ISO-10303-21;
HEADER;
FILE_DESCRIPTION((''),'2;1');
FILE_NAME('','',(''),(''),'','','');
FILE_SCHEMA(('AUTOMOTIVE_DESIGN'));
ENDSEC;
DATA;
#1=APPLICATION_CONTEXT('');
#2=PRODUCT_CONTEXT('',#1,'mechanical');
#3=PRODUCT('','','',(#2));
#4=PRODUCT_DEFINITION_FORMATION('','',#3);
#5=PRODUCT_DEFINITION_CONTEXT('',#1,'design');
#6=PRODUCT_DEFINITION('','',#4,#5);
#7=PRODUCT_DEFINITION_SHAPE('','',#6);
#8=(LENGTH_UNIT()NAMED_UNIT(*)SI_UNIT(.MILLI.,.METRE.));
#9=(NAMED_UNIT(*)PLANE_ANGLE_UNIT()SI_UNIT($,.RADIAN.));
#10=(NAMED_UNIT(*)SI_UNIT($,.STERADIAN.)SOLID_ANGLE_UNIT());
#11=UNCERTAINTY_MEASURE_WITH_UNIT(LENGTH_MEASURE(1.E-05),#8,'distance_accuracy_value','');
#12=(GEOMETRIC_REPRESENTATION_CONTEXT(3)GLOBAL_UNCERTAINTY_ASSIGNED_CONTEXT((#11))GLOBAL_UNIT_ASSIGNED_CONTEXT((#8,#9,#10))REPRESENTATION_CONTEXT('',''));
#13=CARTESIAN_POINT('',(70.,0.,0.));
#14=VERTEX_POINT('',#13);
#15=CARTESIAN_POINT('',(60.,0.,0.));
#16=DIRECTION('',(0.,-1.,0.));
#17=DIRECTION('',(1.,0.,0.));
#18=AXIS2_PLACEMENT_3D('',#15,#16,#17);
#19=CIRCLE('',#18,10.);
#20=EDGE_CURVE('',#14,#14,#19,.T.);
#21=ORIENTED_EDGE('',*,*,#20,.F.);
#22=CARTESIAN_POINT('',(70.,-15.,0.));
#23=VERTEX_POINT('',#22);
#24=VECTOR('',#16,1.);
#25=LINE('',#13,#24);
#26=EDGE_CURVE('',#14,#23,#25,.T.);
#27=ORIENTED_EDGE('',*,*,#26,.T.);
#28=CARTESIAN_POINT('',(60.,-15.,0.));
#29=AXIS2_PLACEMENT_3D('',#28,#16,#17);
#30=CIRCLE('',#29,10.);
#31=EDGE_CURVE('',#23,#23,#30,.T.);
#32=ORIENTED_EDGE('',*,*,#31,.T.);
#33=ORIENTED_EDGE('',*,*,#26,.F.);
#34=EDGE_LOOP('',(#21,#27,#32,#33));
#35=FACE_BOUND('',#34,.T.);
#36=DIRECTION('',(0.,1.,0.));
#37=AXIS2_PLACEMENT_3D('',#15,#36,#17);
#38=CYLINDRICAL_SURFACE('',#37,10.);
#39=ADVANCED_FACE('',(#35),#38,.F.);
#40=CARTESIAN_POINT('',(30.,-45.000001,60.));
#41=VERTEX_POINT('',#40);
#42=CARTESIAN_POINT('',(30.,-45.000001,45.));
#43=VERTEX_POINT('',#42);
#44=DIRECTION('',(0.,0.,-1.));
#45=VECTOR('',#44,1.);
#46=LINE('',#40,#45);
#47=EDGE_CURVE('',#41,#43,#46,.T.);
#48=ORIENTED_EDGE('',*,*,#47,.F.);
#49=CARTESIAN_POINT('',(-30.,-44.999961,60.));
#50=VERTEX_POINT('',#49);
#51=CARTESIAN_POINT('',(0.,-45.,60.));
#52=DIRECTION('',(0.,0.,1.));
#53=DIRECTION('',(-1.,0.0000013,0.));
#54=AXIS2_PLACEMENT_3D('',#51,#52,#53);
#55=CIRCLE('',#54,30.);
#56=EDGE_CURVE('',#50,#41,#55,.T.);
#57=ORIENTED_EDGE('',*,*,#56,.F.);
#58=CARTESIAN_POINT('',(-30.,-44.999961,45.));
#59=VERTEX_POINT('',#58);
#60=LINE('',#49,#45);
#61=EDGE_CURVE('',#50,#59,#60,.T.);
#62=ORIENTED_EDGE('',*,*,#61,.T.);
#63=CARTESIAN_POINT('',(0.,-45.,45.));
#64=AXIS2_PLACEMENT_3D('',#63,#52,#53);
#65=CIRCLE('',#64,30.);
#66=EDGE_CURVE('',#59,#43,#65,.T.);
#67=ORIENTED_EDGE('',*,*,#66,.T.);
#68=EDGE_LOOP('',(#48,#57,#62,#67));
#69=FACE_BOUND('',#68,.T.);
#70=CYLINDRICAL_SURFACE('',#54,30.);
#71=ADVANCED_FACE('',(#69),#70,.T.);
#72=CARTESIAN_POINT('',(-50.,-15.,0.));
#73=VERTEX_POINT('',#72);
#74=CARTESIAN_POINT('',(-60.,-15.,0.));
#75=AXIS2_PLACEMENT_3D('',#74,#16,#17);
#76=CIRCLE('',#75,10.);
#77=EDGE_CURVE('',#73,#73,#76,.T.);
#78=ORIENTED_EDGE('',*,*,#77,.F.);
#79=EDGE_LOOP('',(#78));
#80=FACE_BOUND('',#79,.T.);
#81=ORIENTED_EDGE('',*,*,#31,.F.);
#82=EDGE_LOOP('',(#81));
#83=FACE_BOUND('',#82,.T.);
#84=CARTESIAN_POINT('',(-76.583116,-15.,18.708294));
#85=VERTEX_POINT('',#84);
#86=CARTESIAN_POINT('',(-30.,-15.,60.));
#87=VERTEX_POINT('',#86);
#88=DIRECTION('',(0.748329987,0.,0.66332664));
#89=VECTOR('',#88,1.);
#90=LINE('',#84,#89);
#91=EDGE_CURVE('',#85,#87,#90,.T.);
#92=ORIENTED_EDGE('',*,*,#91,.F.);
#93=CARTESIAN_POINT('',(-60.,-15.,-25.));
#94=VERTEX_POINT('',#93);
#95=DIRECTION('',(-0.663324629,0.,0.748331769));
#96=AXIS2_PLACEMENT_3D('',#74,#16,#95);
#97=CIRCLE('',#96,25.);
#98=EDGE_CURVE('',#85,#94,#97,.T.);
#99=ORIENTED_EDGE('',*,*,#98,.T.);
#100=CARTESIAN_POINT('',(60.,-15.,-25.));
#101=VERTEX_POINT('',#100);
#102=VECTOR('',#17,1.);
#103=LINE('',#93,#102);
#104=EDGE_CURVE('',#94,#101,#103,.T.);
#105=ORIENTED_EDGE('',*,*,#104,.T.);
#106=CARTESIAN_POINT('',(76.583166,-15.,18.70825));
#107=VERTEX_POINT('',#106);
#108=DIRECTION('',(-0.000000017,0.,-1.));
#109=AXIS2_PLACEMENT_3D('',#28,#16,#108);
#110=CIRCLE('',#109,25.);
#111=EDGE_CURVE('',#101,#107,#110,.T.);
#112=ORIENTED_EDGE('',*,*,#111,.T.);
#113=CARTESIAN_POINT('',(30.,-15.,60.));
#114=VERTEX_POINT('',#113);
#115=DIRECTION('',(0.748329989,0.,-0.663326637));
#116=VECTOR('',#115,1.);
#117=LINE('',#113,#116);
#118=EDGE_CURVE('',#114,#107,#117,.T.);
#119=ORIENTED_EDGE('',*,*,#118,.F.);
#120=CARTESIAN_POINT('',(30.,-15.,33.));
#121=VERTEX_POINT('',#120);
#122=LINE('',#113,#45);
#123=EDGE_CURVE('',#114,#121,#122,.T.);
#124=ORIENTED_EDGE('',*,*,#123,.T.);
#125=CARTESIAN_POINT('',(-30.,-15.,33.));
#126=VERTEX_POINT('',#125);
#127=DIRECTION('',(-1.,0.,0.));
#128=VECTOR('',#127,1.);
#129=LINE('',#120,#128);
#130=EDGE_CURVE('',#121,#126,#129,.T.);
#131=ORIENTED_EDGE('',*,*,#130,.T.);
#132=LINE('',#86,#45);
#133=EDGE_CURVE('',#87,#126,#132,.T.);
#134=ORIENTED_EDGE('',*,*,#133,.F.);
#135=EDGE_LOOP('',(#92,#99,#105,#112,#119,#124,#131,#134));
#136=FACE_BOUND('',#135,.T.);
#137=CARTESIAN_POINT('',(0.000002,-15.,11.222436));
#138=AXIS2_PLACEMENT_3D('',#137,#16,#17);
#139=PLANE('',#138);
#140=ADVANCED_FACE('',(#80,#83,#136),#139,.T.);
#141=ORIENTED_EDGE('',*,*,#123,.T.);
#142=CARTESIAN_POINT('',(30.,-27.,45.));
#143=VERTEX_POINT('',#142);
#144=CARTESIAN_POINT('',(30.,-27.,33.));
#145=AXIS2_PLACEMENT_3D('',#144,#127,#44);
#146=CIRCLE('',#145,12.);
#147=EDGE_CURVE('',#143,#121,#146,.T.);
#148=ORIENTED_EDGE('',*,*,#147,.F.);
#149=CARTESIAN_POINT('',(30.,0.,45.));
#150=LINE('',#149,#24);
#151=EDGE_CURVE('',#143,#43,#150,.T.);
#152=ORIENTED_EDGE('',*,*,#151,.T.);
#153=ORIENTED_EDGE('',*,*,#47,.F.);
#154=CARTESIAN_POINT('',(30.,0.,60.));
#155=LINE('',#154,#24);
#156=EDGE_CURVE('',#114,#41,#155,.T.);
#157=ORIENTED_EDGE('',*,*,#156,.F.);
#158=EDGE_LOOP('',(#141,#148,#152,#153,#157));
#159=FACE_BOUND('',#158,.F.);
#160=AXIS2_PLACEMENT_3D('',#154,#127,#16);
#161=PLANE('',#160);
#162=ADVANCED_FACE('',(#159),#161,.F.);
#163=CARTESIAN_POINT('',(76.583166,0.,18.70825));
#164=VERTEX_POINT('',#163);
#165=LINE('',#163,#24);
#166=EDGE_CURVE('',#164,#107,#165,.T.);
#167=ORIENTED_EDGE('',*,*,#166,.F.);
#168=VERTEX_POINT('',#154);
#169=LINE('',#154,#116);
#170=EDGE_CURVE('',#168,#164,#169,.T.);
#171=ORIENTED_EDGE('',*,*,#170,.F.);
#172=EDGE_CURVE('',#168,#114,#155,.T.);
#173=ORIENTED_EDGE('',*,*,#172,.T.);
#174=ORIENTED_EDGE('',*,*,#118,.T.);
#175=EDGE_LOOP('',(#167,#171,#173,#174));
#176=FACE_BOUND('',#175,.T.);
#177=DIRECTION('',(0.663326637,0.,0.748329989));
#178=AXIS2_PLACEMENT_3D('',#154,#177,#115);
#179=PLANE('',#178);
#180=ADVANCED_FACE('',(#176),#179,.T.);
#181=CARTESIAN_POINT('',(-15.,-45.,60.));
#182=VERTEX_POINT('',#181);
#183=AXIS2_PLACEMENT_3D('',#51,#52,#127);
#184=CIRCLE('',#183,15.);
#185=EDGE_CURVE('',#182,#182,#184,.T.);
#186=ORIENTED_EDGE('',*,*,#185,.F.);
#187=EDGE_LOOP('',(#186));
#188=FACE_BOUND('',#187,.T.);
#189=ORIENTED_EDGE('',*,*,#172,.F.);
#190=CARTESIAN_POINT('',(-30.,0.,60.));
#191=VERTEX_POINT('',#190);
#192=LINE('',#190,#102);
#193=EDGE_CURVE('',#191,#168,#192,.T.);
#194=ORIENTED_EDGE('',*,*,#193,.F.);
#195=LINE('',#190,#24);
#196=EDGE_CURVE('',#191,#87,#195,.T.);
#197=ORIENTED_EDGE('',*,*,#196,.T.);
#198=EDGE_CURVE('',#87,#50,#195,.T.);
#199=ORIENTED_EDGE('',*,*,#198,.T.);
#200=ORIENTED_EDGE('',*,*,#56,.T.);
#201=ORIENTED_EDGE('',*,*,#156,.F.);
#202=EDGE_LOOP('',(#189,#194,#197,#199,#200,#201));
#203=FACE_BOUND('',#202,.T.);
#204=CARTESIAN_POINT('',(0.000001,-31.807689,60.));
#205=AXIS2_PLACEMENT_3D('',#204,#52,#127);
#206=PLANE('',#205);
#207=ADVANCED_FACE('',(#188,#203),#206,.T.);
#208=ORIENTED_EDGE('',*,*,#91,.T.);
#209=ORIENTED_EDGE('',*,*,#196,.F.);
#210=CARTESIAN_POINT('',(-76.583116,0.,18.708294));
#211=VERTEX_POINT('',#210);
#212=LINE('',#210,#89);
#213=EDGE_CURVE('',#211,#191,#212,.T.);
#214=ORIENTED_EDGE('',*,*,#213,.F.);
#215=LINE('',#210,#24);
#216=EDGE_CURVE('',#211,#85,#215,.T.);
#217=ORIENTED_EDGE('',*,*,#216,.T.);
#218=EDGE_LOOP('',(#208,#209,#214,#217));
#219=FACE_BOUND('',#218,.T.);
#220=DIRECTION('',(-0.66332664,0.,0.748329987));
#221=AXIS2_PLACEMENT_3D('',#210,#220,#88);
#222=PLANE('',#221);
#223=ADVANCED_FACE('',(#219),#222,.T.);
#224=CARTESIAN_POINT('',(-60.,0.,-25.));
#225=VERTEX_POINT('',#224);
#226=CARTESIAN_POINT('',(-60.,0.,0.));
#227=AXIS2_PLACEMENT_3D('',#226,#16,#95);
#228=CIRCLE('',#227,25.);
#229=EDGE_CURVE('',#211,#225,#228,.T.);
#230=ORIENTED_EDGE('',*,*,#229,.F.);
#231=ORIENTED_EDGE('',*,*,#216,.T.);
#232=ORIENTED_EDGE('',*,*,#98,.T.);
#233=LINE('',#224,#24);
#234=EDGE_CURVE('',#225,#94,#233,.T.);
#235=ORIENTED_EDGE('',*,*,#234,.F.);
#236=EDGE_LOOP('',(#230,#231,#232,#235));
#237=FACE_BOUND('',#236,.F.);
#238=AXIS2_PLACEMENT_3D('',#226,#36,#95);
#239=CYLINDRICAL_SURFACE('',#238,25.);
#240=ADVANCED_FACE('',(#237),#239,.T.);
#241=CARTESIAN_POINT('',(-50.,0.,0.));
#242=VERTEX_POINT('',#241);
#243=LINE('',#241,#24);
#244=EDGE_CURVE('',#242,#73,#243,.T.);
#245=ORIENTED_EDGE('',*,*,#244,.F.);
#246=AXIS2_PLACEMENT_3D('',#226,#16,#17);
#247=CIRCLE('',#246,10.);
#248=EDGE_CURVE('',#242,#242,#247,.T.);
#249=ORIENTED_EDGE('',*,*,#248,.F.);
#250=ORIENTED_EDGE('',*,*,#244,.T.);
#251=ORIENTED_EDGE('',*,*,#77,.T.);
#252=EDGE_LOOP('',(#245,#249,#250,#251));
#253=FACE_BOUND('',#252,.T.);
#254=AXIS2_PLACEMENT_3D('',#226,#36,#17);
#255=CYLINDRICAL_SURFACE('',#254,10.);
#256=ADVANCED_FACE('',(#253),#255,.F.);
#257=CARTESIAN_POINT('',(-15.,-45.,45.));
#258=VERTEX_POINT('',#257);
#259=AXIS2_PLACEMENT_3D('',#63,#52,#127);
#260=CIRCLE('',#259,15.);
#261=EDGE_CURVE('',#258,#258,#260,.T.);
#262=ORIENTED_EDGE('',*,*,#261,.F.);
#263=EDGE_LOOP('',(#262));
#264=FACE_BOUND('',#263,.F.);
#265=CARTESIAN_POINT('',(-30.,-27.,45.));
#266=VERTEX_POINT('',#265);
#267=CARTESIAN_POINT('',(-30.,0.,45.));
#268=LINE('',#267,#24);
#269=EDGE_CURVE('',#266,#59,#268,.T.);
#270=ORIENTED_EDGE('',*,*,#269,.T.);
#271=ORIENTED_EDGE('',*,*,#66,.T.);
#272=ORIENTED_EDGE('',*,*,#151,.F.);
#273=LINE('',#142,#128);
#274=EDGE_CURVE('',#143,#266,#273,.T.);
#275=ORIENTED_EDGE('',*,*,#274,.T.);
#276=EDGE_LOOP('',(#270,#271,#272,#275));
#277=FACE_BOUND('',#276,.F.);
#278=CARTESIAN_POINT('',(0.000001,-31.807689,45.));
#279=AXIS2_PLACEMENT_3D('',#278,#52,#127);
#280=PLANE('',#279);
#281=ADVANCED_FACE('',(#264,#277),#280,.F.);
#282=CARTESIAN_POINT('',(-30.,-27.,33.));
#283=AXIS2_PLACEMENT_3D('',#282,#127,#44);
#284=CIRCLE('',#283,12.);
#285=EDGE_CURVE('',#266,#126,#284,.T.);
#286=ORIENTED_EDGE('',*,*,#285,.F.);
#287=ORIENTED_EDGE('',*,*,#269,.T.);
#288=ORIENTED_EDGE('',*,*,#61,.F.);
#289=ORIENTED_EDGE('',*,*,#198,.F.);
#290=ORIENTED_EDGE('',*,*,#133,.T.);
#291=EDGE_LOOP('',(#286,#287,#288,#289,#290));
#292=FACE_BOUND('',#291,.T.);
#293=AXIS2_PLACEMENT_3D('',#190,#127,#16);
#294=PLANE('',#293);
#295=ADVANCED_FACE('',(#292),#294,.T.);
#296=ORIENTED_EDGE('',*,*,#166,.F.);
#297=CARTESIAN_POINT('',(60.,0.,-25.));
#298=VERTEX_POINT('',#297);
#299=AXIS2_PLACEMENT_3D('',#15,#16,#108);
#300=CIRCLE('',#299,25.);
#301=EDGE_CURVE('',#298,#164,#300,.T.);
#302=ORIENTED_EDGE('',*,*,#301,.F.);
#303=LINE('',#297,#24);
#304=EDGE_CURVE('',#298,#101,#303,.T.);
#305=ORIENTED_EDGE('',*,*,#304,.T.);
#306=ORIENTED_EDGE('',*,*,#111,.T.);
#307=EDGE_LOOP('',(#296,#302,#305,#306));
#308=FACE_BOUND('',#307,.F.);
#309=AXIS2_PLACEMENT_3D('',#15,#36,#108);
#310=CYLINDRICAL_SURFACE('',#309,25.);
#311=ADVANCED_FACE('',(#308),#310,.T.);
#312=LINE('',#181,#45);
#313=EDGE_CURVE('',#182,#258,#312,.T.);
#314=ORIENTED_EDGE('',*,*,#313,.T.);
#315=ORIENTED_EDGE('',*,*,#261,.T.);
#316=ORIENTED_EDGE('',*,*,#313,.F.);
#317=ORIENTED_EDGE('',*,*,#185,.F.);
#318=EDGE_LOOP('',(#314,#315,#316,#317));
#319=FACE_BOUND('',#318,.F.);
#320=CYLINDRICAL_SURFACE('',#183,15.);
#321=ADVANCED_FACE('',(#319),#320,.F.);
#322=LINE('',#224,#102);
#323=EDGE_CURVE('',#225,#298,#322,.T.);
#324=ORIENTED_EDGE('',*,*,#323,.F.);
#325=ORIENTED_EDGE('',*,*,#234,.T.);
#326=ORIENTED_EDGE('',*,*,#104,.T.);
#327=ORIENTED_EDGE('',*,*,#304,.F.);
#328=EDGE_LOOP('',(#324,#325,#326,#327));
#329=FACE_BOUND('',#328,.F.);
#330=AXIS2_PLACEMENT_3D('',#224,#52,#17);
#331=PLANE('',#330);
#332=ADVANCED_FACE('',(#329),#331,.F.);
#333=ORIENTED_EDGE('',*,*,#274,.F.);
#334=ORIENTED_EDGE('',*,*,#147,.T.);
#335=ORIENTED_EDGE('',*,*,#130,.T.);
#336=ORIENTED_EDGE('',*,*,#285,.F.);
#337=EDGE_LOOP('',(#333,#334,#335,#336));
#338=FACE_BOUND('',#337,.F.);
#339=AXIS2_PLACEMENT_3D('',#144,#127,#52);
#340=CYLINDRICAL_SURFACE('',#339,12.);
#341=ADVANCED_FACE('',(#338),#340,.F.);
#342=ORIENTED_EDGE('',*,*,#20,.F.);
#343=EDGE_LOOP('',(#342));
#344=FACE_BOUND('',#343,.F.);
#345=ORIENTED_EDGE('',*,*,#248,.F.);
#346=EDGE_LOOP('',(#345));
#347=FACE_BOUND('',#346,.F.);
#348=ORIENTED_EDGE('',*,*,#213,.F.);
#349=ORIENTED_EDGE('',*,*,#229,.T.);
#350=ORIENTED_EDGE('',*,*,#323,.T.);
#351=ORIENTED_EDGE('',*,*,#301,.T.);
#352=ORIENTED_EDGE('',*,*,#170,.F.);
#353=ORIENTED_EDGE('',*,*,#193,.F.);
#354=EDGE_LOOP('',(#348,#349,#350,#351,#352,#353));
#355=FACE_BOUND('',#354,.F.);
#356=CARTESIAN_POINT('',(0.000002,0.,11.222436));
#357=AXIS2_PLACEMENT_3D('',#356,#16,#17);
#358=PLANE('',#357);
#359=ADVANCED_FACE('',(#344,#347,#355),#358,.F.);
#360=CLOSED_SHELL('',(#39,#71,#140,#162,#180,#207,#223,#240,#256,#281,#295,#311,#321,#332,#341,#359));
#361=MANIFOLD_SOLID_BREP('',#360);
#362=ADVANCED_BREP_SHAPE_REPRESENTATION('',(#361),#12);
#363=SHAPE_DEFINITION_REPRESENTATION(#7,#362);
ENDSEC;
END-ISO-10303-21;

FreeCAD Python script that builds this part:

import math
import FreeCAD as App
import Part
import Sketcher
Q = App.Units.Quantity


def edges_at(feature, points):
    """Names of the edges that pass closest to the given points."""
    edges = feature.Shape.Edges
    near = lambda p: min(range(len(edges)), key=lambda i: edges[i].distToShape(Part.Vertex(*p))[0])
    return sorted({f"Edge{near(p) + 1}" for p in points})

doc = App.newDocument("Part")
params = doc.addObject("Spreadsheet::Sheet", "Params")
for row, (alias, value) in enumerate([
    ("sketch1_diameter", "20 mm"),
    ("sketch1_radius", "25 mm"),
    ("sketch1_width", "120 mm"),
    ("sketch1_width2", "60 mm"),
    ("pad1_length", "15 mm"),
    ("sketch2_diameter", "30 mm"),
    ("sketch2_radius", "30 mm"),
    ("sketch2_height", "45.000001 mm"),
    ("pad2_length", "15 mm"),
    ("fillet_radius", "12 mm"),
], start=1):
    params.set(f"A{row}", alias)
    params.set(f"B{row}", "=" + value)
    params.setAlias(f"B{row}", alias)

body = doc.addObject("PartDesign::Body", "Body")

# Sketch on XZ plane
sketch1 = doc.addObject("Sketcher::SketchObject", "Sketch")
body.addObject(sketch1)
sketch1.AttachmentSupport = (doc.XZ_Plane, [""])
sketch1.MapMode = "FlatFace"
sketch1.addGeometry([
    Part.ArcOfCircle(Part.Circle(App.Vector(-60, 0, 0), App.Vector(0, 0, 1), 25), math.radians(132), math.radians(270)),  # 0
    Part.LineSegment(App.Vector(-60, -25, 0), App.Vector(60, -25, 0)),  # 1
    Part.ArcOfCircle(Part.Circle(App.Vector(60, 0, 0), App.Vector(0, 0, 1), 25), math.radians(-90), math.radians(48)),  # 2
    Part.LineSegment(App.Vector(77, 19, 0), App.Vector(30, 60, 0)),  # 3
    Part.LineSegment(App.Vector(30, 60, 0), App.Vector(-30, 60, 0)),  # 4
    Part.LineSegment(App.Vector(-30, 60, 0), App.Vector(-77, 19, 0)),  # 5
    Part.Circle(App.Vector(-60, 0, 0), App.Vector(0, 0, 1), 10),  # 6
    Part.Circle(App.Vector(60, 0, 0), App.Vector(0, 0, 1), 10),  # 7
], False)
sketch1.addConstraint([
    Sketcher.Constraint("Tangent", 0, 2, 1, 1),
    Sketcher.Constraint("Tangent", 1, 2, 2, 1),
    Sketcher.Constraint("Tangent", 2, 2, 3, 1),
    Sketcher.Constraint("Coincident", 3, 2, 4, 1),
    Sketcher.Constraint("Coincident", 4, 2, 5, 1),
    Sketcher.Constraint("Coincident", 5, 2, 0, 1),
    Sketcher.Constraint("Horizontal", 1),
    Sketcher.Constraint("Horizontal", 4),
    Sketcher.Constraint("Coincident", 6, 3, 0, 3),
    Sketcher.Constraint("Coincident", 7, 3, 2, 3),
    Sketcher.Constraint("Equal", 0, 2),
    Sketcher.Constraint("Equal", 6, 7),
    Sketcher.Constraint("Symmetric", 0, 3, 2, 3, -1, 1),
    Sketcher.Constraint("Diameter", 6, Q("20 mm")),
    Sketcher.Constraint("Radius", 0, Q("25 mm")),
    Sketcher.Constraint("DistanceX", 1, 1, 1, 2, Q("120 mm")),
    Sketcher.Constraint("DistanceX", 4, 2, 4, 1, Q("60 mm")),
    Sketcher.Constraint("DistanceX", -1, 1, 3, 2, Q("30 mm")),
    Sketcher.Constraint("DistanceY", -1, 1, 3, 2, Q("60 mm")),
    Sketcher.Constraint("Distance", 5, Q("62.249431 mm")),
])
sketch1.setExpression("Constraints[13]", "Params.sketch1_diameter")
sketch1.setExpression("Constraints[14]", "Params.sketch1_radius")
sketch1.setExpression("Constraints[15]", "Params.sketch1_width")
sketch1.setExpression("Constraints[16]", "Params.sketch1_width2")
pad1 = doc.addObject("PartDesign::Pad", "Pad")
body.addObject(pad1)
pad1.Profile = sketch1
pad1.setExpression("Length", "Params.pad1_length")

# Sketch on XY plane
sketch2 = doc.addObject("Sketcher::SketchObject", "Sketch001")
body.addObject(sketch2)
sketch2.AttachmentSupport = (doc.XY_Plane, [""])
sketch2.MapMode = "FlatFace"
sketch2.AttachmentOffset = App.Placement(App.Vector(0, 0, 60), App.Rotation())
sketch2.addGeometry([
    Part.ArcOfCircle(Part.Circle(App.Vector(0, -45, 0), App.Vector(0, 0, 1), 30), math.radians(179.999926), math.radians(359.999998)),  # 0
    Part.LineSegment(App.Vector(30, -45.000001, 0), App.Vector(30, 0, 0)),  # 1
    Part.LineSegment(App.Vector(30, 0, 0), App.Vector(-30, 0, 0)),  # 2
    Part.LineSegment(App.Vector(-30, 0, 0), App.Vector(-30, -44.999961, 0)),  # 3
    Part.Circle(App.Vector(0, -45, 0), App.Vector(0, 0, 1), 15),  # 4
], False)
sketch2.addConstraint([
    Sketcher.Constraint("Coincident", 0, 2, 1, 1),
    Sketcher.Constraint("Coincident", 1, 2, 2, 1),
    Sketcher.Constraint("Coincident", 2, 2, 3, 1),
    Sketcher.Constraint("Coincident", 3, 2, 0, 1),
    Sketcher.Constraint("Vertical", 1),
    Sketcher.Constraint("Horizontal", 2),
    Sketcher.Constraint("Vertical", 3),
    Sketcher.Constraint("Coincident", 4, 3, 0, 3),
    Sketcher.Constraint("PointOnObject", 0, 3, -2),
    Sketcher.Constraint("PointOnObject", 1, 2, -1),
    Sketcher.Constraint("Diameter", 4, Q("30 mm")),
    Sketcher.Constraint("Radius", 0, Q("30 mm")),
    Sketcher.Constraint("DistanceY", 1, 1, 1, 2, Q("45.000001 mm")),
    Sketcher.Constraint("DistanceY", 0, 3, -1, 1, Q("45 mm")),
    Sketcher.Constraint("DistanceY", 3, 2, 3, 1, Q("44.999961 mm")),
])
sketch2.setExpression("Constraints[10]", "Params.sketch2_diameter")
sketch2.setExpression("Constraints[11]", "Params.sketch2_radius")
sketch2.setExpression("Constraints[12]", "Params.sketch2_height")
pad2 = doc.addObject("PartDesign::Pad", "Pad001")
body.addObject(pad2)
pad2.Profile = sketch2
pad2.setExpression("Length", "Params.pad2_length")
pad2.Reversed = True
doc.recompute()

fillet = doc.addObject("PartDesign::Fillet", "Fillet")
body.addObject(fillet)
fillet.Base = (pad2, edges_at(pad2, [(0, -15, 45)]))
fillet.setExpression("Radius", "Params.fillet_radius")

doc.recompute()
